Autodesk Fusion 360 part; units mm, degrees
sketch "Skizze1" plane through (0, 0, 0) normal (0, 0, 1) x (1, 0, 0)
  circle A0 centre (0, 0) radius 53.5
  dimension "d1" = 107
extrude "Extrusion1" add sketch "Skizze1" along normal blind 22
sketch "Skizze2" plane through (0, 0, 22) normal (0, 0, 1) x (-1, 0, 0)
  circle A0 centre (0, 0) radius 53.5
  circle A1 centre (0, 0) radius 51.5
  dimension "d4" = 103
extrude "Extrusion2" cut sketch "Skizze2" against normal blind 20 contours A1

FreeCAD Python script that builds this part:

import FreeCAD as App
import Part
import Sketcher
from FreeCAD import Vector
Q = App.Units.Quantity

doc = App.newDocument("Part")
body = doc.addObject("PartDesign::Body", "Body")

sketch1 = body.newObject("Sketcher::SketchObject", "Sketch")
sketch1.AttachmentSupport = (doc.getObject("XY_Plane"), [""])
sketch1.MapMode = "FlatFace"
sketch1.addGeometry(Part.Circle(Vector(0, 0, 0), Vector(0, 0, 1), 54), False)
sketch1.addConstraint([
    Sketcher.Constraint("Coincident", 0, 3, -1, 1),
    Sketcher.Constraint("Diameter", 0, Q("107 mm")),
])
pad1 = body.newObject("PartDesign::Pad", "Pad")
pad1.Profile = sketch1
pad1.Length = 22

sketch2 = body.newObject("Sketcher::SketchObject", "Sketch001")
sketch2.AttachmentSupport = (doc.getObject("XY_Plane"), [""])
sketch2.MapMode = "FlatFace"
sketch2.AttachmentOffset = App.Placement(Vector(0, 0, 22), App.Rotation())
sketch2.addGeometry(Part.Circle(Vector(0, 0, 0), Vector(0, 0, 1), 52), False)
sketch2.addConstraint([
    Sketcher.Constraint("Coincident", 0, 3, -1, 1),
    Sketcher.Constraint("Diameter", 0, Q("103 mm")),
])
pocket1 = body.newObject("PartDesign::Pocket", "Pocket")
pocket1.Profile = sketch2
pocket1.Length = 20

doc.recompute()
